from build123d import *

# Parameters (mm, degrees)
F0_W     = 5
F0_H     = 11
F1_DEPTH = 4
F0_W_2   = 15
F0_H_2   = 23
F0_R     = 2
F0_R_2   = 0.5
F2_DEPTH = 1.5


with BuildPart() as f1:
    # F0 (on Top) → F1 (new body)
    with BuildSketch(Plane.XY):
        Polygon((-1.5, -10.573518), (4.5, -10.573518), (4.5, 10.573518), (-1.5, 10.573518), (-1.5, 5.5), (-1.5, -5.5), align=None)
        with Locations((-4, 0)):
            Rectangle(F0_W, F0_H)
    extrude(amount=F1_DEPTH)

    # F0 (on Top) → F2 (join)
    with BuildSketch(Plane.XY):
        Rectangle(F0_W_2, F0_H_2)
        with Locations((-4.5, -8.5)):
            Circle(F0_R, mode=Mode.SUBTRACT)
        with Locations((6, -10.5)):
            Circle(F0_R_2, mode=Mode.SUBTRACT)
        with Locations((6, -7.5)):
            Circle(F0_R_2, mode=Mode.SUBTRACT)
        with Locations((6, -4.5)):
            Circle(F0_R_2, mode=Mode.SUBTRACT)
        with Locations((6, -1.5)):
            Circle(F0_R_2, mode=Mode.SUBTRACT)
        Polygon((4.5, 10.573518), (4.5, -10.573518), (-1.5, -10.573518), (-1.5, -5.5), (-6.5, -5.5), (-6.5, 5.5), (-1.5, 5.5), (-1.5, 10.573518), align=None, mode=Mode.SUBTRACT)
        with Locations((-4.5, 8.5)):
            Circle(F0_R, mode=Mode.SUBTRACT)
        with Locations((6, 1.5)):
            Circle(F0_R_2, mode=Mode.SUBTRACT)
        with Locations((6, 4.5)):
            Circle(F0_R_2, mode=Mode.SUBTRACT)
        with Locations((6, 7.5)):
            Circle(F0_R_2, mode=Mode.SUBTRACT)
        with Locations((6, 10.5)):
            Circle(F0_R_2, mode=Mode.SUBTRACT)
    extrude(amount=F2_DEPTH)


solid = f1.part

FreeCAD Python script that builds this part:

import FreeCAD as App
import Part
import Sketcher
from FreeCAD import Vector


def add_polygon(sketch, points):
    """Adds a closed chain of lines whose ends are joined by coincident constraints."""
    first, n = sketch.GeometryCount, len(points)
    for a, b in zip(points, points[1:] + points[:1]):
        sketch.addGeometry(Part.LineSegment(App.Vector(*a, 0), App.Vector(*b, 0)), False)
    for i in range(n):
        sketch.addConstraint(Sketcher.Constraint("Coincident", first + i, 2, first + (i + 1) % n, 1))

doc = App.newDocument("Part")
body = doc.addObject("PartDesign::Body", "Body")

sketch1 = body.newObject("Sketcher::SketchObject", "Sketch")
sketch1.AttachmentSupport = (doc.getObject("XY_Plane"), [""])
sketch1.MapMode = "FlatFace"
add_polygon(sketch1, [(-2, -11), (4, -11), (4, 11), (-2, 11), (-2, 6), (-6, 6), (-6, -6), (-2, -6)])
sketch1.addConstraint([
    Sketcher.Constraint("Horizontal", 0),
    Sketcher.Constraint("Vertical", 1),
    Sketcher.Constraint("Horizontal", 2),
    Sketcher.Constraint("Vertical", 3),
    Sketcher.Constraint("Horizontal", 4),
    Sketcher.Constraint("Vertical", 5),
    Sketcher.Constraint("Horizontal", 6),
    Sketcher.Constraint("Vertical", 7),
    Sketcher.Constraint("Symmetric", 3, 2, 6, 2, -1),
    Sketcher.Constraint("Equal", 3, 7),
    Sketcher.Constraint("DistanceX", 0, 1, 0, 2, 6.0),
    Sketcher.Constraint("DistanceX", 4, 2, 4, 1, 5.0),
    Sketcher.Constraint("DistanceY", 5, 2, 5, 1, 11.0),
    Sketcher.Constraint("DistanceX", -1, 1, 0, 2, 4.5),
    Sketcher.Constraint("DistanceY", 1, 1, 1, 2, 21.147036),
])
pad1 = body.newObject("PartDesign::Pad", "Pad")
pad1.Profile = sketch1
pad1.Length = 4

sketch2 = body.newObject("Sketcher::SketchObject", "Sketch001")
sketch2.AttachmentSupport = (doc.getObject("XY_Plane"), [""])
sketch2.MapMode = "FlatFace"
add_polygon(sketch2, [(-7.5, 11.5), (-7.5, -11.5), (7.5, -11.5), (7.5, 11.5)])
sketch2.addGeometry(Part.Circle(Vector(-4.5, -8.5, 0), Vector(0, 0, 1), 2), False)
sketch2.addGeometry(Part.Circle(Vector(6, -10.5, 0), Vector(0, 0, 1), 0.5), False)
sketch2.addGeometry(Part.Circle(Vector(6, -7.5, 0), Vector(0, 0, 1), 0.5), False)
sketch2.addGeometry(Part.Circle(Vector(6, -4.5, 0), Vector(0, 0, 1), 0.5), False)
sketch2.addGeometry(Part.Circle(Vector(6, -1.5, 0), Vector(0, 0, 1), 0.5), False)
add_polygon(sketch2, [(-1.5, 10.6), (4.5, 10.6), (4.5, -10.6), (-1.5, -10.6), (-1.5, -5.5), (-6.5, -5.5), (-6.5, 5.5), (-1.5, 5.5)])
sketch2.addGeometry(Part.Circle(Vector(-4.5, 8.5, 0), Vector(0, 0, 1), 2), False)
sketch2.addGeometry(Part.Circle(Vector(6, 1.5, 0), Vector(0, 0, 1), 0.5), False)
sketch2.addGeometry(Part.Circle(Vector(6, 4.5, 0), Vector(0, 0, 1), 0.5), False)
sketch2.addGeometry(Part.Circle(Vector(6, 7.5, 0), Vector(0, 0, 1), 0.5), False)
sketch2.addGeometry(Part.Circle(Vector(6, 10.5, 0), Vector(0, 0, 1), 0.5), False)
sketch2.addConstraint([
    Sketcher.Constraint("Vertical", 0),
    Sketcher.Constraint("Horizontal", 1),
    Sketcher.Constraint("Vertical", 2),
    Sketcher.Constraint("Horizontal", 3),
    Sketcher.Constraint("Horizontal", 9),
    Sketcher.Constraint("Vertical", 10),
    Sketcher.Constraint("Horizontal", 11),
    Sketcher.Constraint("Vertical", 12),
    Sketcher.Constraint("Horizontal", 13),
    Sketcher.Constraint("Vertical", 14),
    Sketcher.Constraint("Horizontal", 15),
    Sketcher.Constraint("Vertical", 16),
    Sketcher.Constraint("Equal", 5, 6),
    Sketcher.Constraint("Equal", 6, 7),
    Sketcher.Constraint("Equal", 7, 8),
    Sketcher.Constraint("Equal", 4, 17),
    Sketcher.Constraint("Equal", 8, 18),
    Sketcher.Constraint("Equal", 18, 19),
    Sketcher.Constraint("Equal", 19, 20),
    Sketcher.Constraint("Equal", 20, 21),
    Sketcher.Constraint("Symmetric", 0, 2, 2, 2, -1, 1),
    Sketcher.Constraint("Symmetric", 4, 3, 17, 3, -1),
    Sketcher.Constraint("Symmetric", 8, 3, 18, 3, -1),
    Sketcher.Constraint("Symmetric", 7, 3, 19, 3, -1),
    Sketcher.Constraint("Symmetric", 6, 3, 20, 3, -1),
    Sketcher.Constraint("Symmetric", 5, 3, 21, 3, -1),
    Sketcher.Constraint("Symmetric", 12, 2, 15, 2, -1),
    Sketcher.Constraint("Vertical", 5, 3, 6, 3),
    Sketcher.Constraint("Vertical", 6, 3, 7, 3),
    Sketcher.Constraint("Vertical", 7, 3, 8, 3),
    Sketcher.Constraint("Equal", 12, 16),
    Sketcher.Constraint("Diameter", 4, 4.0),
    Sketcher.Constraint("Diameter", 5, 1.0),
    Sketcher.Constraint("DistanceX", 1, 1, 1, 2, 15.0),
    Sketcher.Constraint("DistanceX", 9, 1, 9, 2, 6.0),
    Sketcher.Constraint("DistanceX", 13, 2, 13, 1, 5.0),
    Sketcher.Constraint("DistanceY", 0, 2, 0, 1, 23.0),
    Sketcher.Constraint("DistanceY", 14, 1, 14, 2, 11.0),
    Sketcher.Constraint("DistanceX", -1, 1, 5, 3, 6.0),
    Sketcher.Constraint("DistanceY", 5, 3, 4, 3, 2.0),
    Sketcher.Constraint("DistanceY", 5, 3, 6, 3, 3.0),
    Sketcher.Constraint("DistanceY", 6, 3, 7, 3, 3.0),
    Sketcher.Constraint("DistanceY", 7, 3, 8, 3, 3.0),
    Sketcher.Constraint("DistanceY", 8, 3, 17, 3, 10.0),
    Sketcher.Constraint("DistanceX", 0, 2, 4, 3, 3.0),
    Sketcher.Constraint("DistanceX", 9, 2, 2, 2, 3.0),
    Sketcher.Constraint("DistanceY", 10, 2, 10, 1, 21.147036),
])
pad2 = body.newObject("PartDesign::Pad", "Pad001")
pad2.Profile = sketch2
pad2.Length = 1.5

doc.recompute()
